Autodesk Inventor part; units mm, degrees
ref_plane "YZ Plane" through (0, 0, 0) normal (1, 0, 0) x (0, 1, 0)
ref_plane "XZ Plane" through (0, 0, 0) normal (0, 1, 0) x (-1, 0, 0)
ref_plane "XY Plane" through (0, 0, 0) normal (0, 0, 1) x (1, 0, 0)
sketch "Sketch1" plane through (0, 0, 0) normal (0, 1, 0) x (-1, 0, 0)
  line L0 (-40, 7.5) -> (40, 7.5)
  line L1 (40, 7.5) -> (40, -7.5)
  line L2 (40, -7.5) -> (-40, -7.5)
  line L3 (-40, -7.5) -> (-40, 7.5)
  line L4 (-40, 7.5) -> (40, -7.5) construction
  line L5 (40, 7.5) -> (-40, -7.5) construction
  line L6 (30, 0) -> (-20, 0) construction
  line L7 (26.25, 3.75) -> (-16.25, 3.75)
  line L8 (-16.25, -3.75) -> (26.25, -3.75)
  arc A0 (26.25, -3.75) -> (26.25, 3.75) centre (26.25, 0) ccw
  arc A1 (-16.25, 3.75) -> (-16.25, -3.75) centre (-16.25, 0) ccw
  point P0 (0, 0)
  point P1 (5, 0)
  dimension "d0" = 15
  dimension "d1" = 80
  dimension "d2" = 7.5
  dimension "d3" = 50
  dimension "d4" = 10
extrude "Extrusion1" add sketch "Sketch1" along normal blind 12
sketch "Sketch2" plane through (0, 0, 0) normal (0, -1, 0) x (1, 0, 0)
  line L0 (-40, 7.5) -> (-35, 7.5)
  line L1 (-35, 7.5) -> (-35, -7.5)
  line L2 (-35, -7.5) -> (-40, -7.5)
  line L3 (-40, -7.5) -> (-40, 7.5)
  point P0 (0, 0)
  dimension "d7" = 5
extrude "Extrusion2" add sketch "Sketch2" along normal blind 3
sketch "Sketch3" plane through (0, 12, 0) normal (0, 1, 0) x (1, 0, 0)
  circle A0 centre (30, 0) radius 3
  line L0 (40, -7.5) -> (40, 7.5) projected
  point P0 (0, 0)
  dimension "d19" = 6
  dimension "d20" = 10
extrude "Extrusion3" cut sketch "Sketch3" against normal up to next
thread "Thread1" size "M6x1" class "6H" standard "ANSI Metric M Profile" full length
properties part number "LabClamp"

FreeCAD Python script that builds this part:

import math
import FreeCAD as App
import Part
import Sketcher

V = App.Vector
Q = App.Units.Quantity


def add_polygon(sketch, points):
    """Adds a closed chain of lines whose ends are joined by coincident constraints."""
    first, n = sketch.GeometryCount, len(points)
    for a, b in zip(points, points[1:] + points[:1]):
        sketch.addGeometry(Part.LineSegment(App.Vector(*a, 0), App.Vector(*b, 0)), False)
    for i in range(n):
        sketch.addConstraint(Sketcher.Constraint("Coincident", first + i, 2, first + (i + 1) % n, 1))

doc = App.newDocument("Part")
body = doc.addObject("PartDesign::Body", "Body")

# Sketch on XZ plane
sketch1 = body.newObject("Sketcher::SketchObject", "Sketch")
sketch1.AttachmentSupport = (doc.getObject("XZ_Plane"), [""])
sketch1.MapMode = "FlatFace"
add_polygon(sketch1, [(-40, 7.5), (40, 7.5), (40, -7.5), (-40, -7.5)])  # lines 0-3
sketch1.addGeometry(Part.LineSegment(V(16.25, 3.75, 0), V(-26.25, 3.75, 0)), False)  # 4
sketch1.addGeometry(Part.ArcOfCircle(Part.Circle(V(-26.25, 0, 0), V(0, 0, 1), 3.75), math.radians(90), math.radians(270)), False)  # 5
sketch1.addGeometry(Part.LineSegment(V(-26.25, -3.75, 0), V(16.25, -3.75, 0)), False)  # 6
sketch1.addGeometry(Part.ArcOfCircle(Part.Circle(V(16.25, 0, 0), V(0, 0, 1), 3.75), math.radians(-90), math.radians(90)), False)  # 7
sketch1.addConstraint([
    Sketcher.Constraint("Tangent", 4, 2, 5, 1),
    Sketcher.Constraint("Tangent", 5, 2, 6, 1),
    Sketcher.Constraint("Tangent", 6, 2, 7, 1),
    Sketcher.Constraint("Tangent", 7, 2, 4, 1),
    Sketcher.Constraint("Horizontal", 0),
    Sketcher.Constraint("Vertical", 1),
    Sketcher.Constraint("Horizontal", 2),
    Sketcher.Constraint("Vertical", 3),
    Sketcher.Constraint("Horizontal", 4),
    Sketcher.Constraint("Horizontal", 6),
    Sketcher.Constraint("Symmetric", 0, 2, 2, 2, -1, 1),
    Sketcher.Constraint("PointOnObject", 5, 3, -1),
    Sketcher.Constraint("DistanceX", 0, 1, 0, 2, Q("80 mm")),
    Sketcher.Constraint("DistanceY", 1, 2, 1, 1, Q("15 mm")),
    Sketcher.Constraint("Radius", 5, Q("3.75 mm")),
    Sketcher.Constraint("DistanceX", 4, 2, 4, 1, Q("42.5 mm")),
    Sketcher.Constraint("DistanceX", 5, 3, -1, 1, Q("26.25 mm")),
])
pad1 = body.newObject("PartDesign::Pad", "Pad")
pad1.Profile = sketch1
pad1.Length = 12
pad1.Reversed = True

# Sketch on XZ plane
sketch2 = body.newObject("Sketcher::SketchObject", "Sketch001")
sketch2.AttachmentSupport = (doc.getObject("XZ_Plane"), [""])
sketch2.MapMode = "FlatFace"
add_polygon(sketch2, [(-35, 7.5), (-40, 7.5), (-40, -7.5), (-35, -7.5)])  # lines 0-3
sketch2.addConstraint([
    Sketcher.Constraint("Horizontal", 0),
    Sketcher.Constraint("Vertical", 1),
    Sketcher.Constraint("Horizontal", 2),
    Sketcher.Constraint("Vertical", 3),
    Sketcher.Constraint("DistanceX", 0, 2, 0, 1, Q("5 mm")),
    Sketcher.Constraint("DistanceY", 1, 2, 1, 1, Q("15 mm")),
    Sketcher.Constraint("DistanceX", 0, 2, -1, 1, Q("40 mm")),
    Sketcher.Constraint("DistanceY", -1, 1, 0, 2, Q("7.5 mm")),
])
pad2 = body.newObject("PartDesign::Pad", "Pad001")
pad2.Profile = sketch2
pad2.Length = 3

# Sketch on XZ plane
sketch3 = body.newObject("Sketcher::SketchObject", "Sketch002")
sketch3.AttachmentSupport = (doc.getObject("XZ_Plane"), [""])
sketch3.MapMode = "FlatFace"
sketch3.AttachmentOffset = App.Placement(V(0, 0, -12), App.Rotation())
sketch3.addGeometry(Part.Circle(V(30, 0, 0), V(0, 0, 1), 3), False)
sketch3.addConstraint([
    Sketcher.Constraint("PointOnObject", 0, 3, -1),
    Sketcher.Constraint("Diameter", 0, Q("6 mm")),
    Sketcher.Constraint("DistanceX", -1, 1, 0, 3, Q("30 mm")),
])
pocket1 = body.newObject("PartDesign::Pocket", "Pocket")
pocket1.Profile = sketch3
pocket1.Type = "UpToFirst"
pocket1.Reversed = True

doc.recompute()
